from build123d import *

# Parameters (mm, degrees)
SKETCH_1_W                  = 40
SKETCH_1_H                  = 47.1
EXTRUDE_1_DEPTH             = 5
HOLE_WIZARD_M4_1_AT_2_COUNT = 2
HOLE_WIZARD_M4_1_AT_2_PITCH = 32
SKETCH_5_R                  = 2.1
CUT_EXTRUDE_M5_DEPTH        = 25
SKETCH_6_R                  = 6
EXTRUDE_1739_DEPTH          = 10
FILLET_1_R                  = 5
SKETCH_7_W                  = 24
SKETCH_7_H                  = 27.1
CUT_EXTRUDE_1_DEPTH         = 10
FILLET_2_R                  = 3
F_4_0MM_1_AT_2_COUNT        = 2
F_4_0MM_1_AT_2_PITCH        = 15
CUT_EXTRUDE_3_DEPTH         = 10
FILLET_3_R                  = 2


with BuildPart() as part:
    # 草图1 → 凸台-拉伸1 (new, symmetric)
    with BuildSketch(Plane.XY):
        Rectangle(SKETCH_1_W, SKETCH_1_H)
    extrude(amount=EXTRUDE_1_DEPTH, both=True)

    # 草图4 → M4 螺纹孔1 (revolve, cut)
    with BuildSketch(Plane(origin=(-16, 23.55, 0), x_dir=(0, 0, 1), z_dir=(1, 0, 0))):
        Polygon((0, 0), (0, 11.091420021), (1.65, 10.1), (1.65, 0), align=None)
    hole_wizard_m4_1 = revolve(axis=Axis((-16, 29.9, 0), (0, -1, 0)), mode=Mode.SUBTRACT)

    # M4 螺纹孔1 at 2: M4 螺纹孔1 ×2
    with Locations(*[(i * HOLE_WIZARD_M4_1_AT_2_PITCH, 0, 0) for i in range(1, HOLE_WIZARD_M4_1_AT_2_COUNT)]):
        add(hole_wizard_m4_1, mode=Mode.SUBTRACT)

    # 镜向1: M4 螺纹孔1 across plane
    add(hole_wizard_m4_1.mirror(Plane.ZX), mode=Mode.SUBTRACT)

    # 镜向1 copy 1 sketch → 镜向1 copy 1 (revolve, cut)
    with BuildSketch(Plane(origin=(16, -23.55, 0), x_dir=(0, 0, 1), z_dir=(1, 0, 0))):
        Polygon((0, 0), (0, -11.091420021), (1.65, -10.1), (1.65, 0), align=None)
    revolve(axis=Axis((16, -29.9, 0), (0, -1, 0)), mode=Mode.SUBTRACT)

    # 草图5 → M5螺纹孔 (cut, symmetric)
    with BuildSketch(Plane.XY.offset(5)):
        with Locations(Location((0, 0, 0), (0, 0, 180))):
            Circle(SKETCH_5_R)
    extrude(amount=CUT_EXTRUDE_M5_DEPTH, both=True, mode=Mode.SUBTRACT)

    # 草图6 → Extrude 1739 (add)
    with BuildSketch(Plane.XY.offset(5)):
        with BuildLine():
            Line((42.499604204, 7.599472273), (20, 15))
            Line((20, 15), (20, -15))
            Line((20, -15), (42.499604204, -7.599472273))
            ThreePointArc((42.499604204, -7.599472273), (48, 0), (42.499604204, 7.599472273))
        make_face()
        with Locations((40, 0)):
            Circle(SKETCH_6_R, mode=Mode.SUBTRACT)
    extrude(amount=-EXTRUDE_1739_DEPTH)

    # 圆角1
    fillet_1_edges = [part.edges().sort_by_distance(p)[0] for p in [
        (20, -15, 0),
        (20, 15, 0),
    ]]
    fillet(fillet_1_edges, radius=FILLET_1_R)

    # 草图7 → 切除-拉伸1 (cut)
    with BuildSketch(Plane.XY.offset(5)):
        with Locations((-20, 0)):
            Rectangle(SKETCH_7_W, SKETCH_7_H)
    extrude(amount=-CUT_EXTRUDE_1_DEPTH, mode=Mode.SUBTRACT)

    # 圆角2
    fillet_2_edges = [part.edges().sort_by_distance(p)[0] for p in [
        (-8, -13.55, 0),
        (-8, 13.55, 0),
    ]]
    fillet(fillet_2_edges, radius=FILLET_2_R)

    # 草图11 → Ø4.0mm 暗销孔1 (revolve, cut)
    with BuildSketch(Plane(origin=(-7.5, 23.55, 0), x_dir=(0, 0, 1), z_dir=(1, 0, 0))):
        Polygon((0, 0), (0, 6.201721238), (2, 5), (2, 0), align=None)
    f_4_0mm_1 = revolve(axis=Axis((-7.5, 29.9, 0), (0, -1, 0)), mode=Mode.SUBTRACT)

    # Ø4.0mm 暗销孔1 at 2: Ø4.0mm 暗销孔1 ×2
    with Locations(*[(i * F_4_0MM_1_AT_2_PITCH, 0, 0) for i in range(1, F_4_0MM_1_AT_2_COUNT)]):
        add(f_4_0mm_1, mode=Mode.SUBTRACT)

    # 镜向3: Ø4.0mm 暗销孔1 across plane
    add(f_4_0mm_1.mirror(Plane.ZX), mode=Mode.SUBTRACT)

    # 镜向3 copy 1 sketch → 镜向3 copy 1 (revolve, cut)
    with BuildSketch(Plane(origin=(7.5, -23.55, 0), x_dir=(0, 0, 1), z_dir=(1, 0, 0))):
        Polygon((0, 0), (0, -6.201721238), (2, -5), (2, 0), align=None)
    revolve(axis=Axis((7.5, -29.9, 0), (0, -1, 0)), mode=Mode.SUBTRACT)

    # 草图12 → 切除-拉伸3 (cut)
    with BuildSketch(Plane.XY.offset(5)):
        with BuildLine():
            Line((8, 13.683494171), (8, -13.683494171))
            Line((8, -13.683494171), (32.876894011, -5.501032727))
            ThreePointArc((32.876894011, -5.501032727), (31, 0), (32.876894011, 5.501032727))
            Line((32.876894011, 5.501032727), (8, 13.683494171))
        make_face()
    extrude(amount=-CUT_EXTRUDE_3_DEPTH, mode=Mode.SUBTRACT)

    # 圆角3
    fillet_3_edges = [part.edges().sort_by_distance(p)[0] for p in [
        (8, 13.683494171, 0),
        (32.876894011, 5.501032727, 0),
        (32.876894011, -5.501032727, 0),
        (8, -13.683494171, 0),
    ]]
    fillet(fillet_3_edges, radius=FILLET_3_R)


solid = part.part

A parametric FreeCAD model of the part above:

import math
import FreeCAD as App
import Part
import Sketcher
Q = App.Units.Quantity


def edges_at(feature, points):
    """Names of the edges that pass closest to the given points."""
    edges = feature.Shape.Edges
    near = lambda p: min(range(len(edges)), key=lambda i: edges[i].distToShape(Part.Vertex(*p))[0])
    return sorted({f"Edge{near(p) + 1}" for p in points})


def add_polygon(sketch, points):
    """Adds a closed chain of lines whose ends are joined by coincident constraints."""
    first, n = sketch.GeometryCount, len(points)
    for a, b in zip(points, points[1:] + points[:1]):
        sketch.addGeometry(Part.LineSegment(App.Vector(*a, 0), App.Vector(*b, 0)), False)
    for i in range(n):
        sketch.addConstraint(Sketcher.Constraint("Coincident", first + i, 2, first + (i + 1) % n, 1))

doc = App.newDocument("Part")
params = doc.addObject("Spreadsheet::Sheet", "Params")
for row, (alias, value) in enumerate([
    ("sketch1_width", "40 mm"),
    ("sketch1_height", "47.1 mm"),
    ("pad1_length", "10 mm"),
    ("sketch2_width", "10.1 mm"),
    ("sketch2_height", "1.65 mm"),
    ("groove_angle", "360 deg"),
    ("linearpattern_pitch", "32 mm"),
    ("sketch3_width", "10.1 mm"),
    ("sketch3_height", "1.65 mm"),
    ("groove2_angle", "360 deg"),
    ("sketch4_diameter", "4.2 mm"),
    ("pocket1_length", "50 mm"),
    ("sketch5_diameter", "12 mm"),
    ("sketch5_radius", "8 mm"),
    ("sketch5_height", "30 mm"),
    ("pad2_length", "10 mm"),
    ("fillet_radius", "5 mm"),
    ("sketch6_width", "24 mm"),
    ("sketch6_height", "27.1 mm"),
    ("pocket2_length", "10 mm"),
    ("fillet2_radius", "3 mm"),
    ("sketch7_width", "5 mm"),
    ("sketch7_height", "2 mm"),
    ("groove3_angle", "360 deg"),
    ("linearpattern2_pitch", "15 mm"),
    ("sketch8_width", "5 mm"),
    ("sketch8_height", "2 mm"),
    ("groove4_angle", "360 deg"),
    ("sketch9_radius", "9 mm"),
    ("pocket3_length", "10 mm"),
    ("fillet3_radius", "2 mm"),
], start=1):
    params.set(f"A{row}", alias)
    params.set(f"B{row}", "=" + value)
    params.setAlias(f"B{row}", alias)

body = doc.addObject("PartDesign::Body", "Body")

# Sketch on XY plane
sketch1 = body.newObject("Sketcher::SketchObject", "Sketch")
sketch1.AttachmentSupport = (doc.getObject("XY_Plane"), [""])
sketch1.MapMode = "FlatFace"
add_polygon(sketch1, [(-20, 24), (-20, -24), (20, -24), (20, 24)])  # lines 0-3
sketch1.addConstraint([
    Sketcher.Constraint("Vertical", 0),
    Sketcher.Constraint("Horizontal", 1),
    Sketcher.Constraint("Vertical", 2),
    Sketcher.Constraint("Horizontal", 3),
    Sketcher.Constraint("Symmetric", 0, 2, 2, 2, -1, 1),
    Sketcher.Constraint("DistanceX", 1, 1, 1, 2, Q("40 mm")),
    Sketcher.Constraint("DistanceY", 0, 2, 0, 1, Q("47.1 mm")),
])
sketch1.setExpression("Constraints[9]", "Params.sketch1_width")
sketch1.setExpression("Constraints[10]", "Params.sketch1_height")
pad1 = body.newObject("PartDesign::Pad", "Pad")
pad1.Profile = sketch1
pad1.setExpression("Length", "Params.pad1_length")
pad1.Midplane = True

# Sketch on YZ plane
sketch2 = body.newObject("Sketcher::SketchObject", "Sketch001")
sketch2.AttachmentSupport = (doc.getObject("YZ_Plane"), [""])
sketch2.MapMode = "FlatFace"
sketch2.AttachmentOffset = App.Placement(App.Vector(0, 0, -16), App.Rotation())
add_polygon(sketch2, [(12.5, 0), (23.6, 0), (23.6, 1.6), (13.4, 1.6)])  # lines 0-3
sketch2.addConstraint([
    Sketcher.Constraint("Horizontal", 0),
    Sketcher.Constraint("Vertical", 1),
    Sketcher.Constraint("Horizontal", 2),
    Sketcher.Constraint("PointOnObject", 0, 2, -1),
    Sketcher.Constraint("Angle", 3, Q("-121 deg")),
    Sketcher.Constraint("DistanceX", 2, 2, 2, 1, Q("10.1 mm")),
    Sketcher.Constraint("DistanceY", 1, 1, 1, 2, Q("1.65 mm")),
    Sketcher.Constraint("DistanceX", -1, 1, 0, 2, Q("23.55 mm")),
])
sketch2.setExpression("Constraints[9]", "Params.sketch2_width")
sketch2.setExpression("Constraints[10]", "Params.sketch2_height")
groove = body.newObject("PartDesign::Groove", "Groove")
groove.Profile = sketch2
groove.ReferenceAxis = (sketch2, ["H_Axis"])
groove.setExpression("Angle", "Params.groove_angle")
doc.recompute()

linearpattern = body.newObject("PartDesign::LinearPattern", "LinearPattern")
linearpattern.Originals = [groove]
linearpattern.Direction = (doc.getObject("X_Axis"), [""])
linearpattern.Mode = "offset"
linearpattern.setExpression("Offset", "Params.linearpattern_pitch")
linearpattern.Occurrences = 2
body.Tip = linearpattern
doc.recompute()

mirrored = body.newObject("PartDesign::Mirrored", "Mirrored")
mirrored.Originals = [groove]
mirrored.MirrorPlane = (doc.getObject("XZ_Plane"), [""])
body.Tip = mirrored

# Sketch on YZ plane
sketch3 = body.newObject("Sketcher::SketchObject", "Sketch002")
sketch3.AttachmentSupport = (doc.getObject("YZ_Plane"), [""])
sketch3.MapMode = "FlatFace"
sketch3.AttachmentOffset = App.Placement(App.Vector(0, 0, 16), App.Rotation())
add_polygon(sketch3, [(-23.6, 0), (-12.5, 0), (-13.4, 1.6), (-23.6, 1.6)])  # lines 0-3
sketch3.addConstraint([
    Sketcher.Constraint("Horizontal", 0),
    Sketcher.Constraint("Horizontal", 2),
    Sketcher.Constraint("Vertical", 3),
    Sketcher.Constraint("PointOnObject", 0, 2, -1),
    Sketcher.Constraint("Angle", 1, Q("121 deg")),
    Sketcher.Constraint("DistanceX", 2, 2, 2, 1, Q("10.1 mm")),
    Sketcher.Constraint("DistanceY", 3, 2, 3, 1, Q("1.65 mm")),
    Sketcher.Constraint("DistanceX", 1, 2, -1, 1, Q("13.45 mm")),
])
sketch3.setExpression("Constraints[9]", "Params.sketch3_width")
sketch3.setExpression("Constraints[10]", "Params.sketch3_height")
groove2 = body.newObject("PartDesign::Groove", "Groove001")
groove2.Profile = sketch3
groove2.ReferenceAxis = (sketch3, ["H_Axis"])
groove2.setExpression("Angle", "Params.groove2_angle")

# Sketch on XY plane
sketch4 = body.newObject("Sketcher::SketchObject", "Sketch003")
sketch4.AttachmentSupport = (doc.getObject("XY_Plane"), [""])
sketch4.MapMode = "FlatFace"
sketch4.AttachmentOffset = App.Placement(App.Vector(0, 0, 5), App.Rotation())
sketch4.addGeometry(Part.Circle(App.Vector(0, 0, 0), App.Vector(0, 0, 1), 2.1), False)
sketch4.addConstraint([
    Sketcher.Constraint("Coincident", 0, 3, -1, 1),
    Sketcher.Constraint("Diameter", 0, Q("4.2 mm")),
])
sketch4.setExpression("Constraints[1]", "Params.sketch4_diameter")
pocket1 = body.newObject("PartDesign::Pocket", "Pocket")
pocket1.Profile = sketch4
pocket1.setExpression("Length", "Params.pocket1_length")
pocket1.Midplane = True

# Sketch on XY plane
sketch5 = body.newObject("Sketcher::SketchObject", "Sketch004")
sketch5.AttachmentSupport = (doc.getObject("XY_Plane"), [""])
sketch5.MapMode = "FlatFace"
sketch5.AttachmentOffset = App.Placement(App.Vector(0, 0, 5), App.Rotation())
sketch5.addGeometry([
    Part.LineSegment(App.Vector(42, 8, 0), App.Vector(20, 15, 0)),  # 0
    Part.LineSegment(App.Vector(20, 15, 0), App.Vector(20, -15, 0)),  # 1
    Part.LineSegment(App.Vector(20, -15, 0), App.Vector(42, -8, 0)),  # 2
    Part.ArcOfCircle(Part.Circle(App.Vector(40, 0, 0), App.Vector(0, 0, 1), 8), math.radians(-72), math.radians(72)),  # 3
    Part.Circle(App.Vector(40, 0, 0), App.Vector(0, 0, 1), 6),  # 4
], False)
sketch5.addConstraint([
    Sketcher.Constraint("Coincident", 0, 2, 1, 1),
    Sketcher.Constraint("Coincident", 1, 2, 2, 1),
    Sketcher.Constraint("Tangent", 2, 2, 3, 1),
    Sketcher.Constraint("Tangent", 3, 2, 0, 1),
    Sketcher.Constraint("Vertical", 1),
    Sketcher.Constraint("Coincident", 4, 3, 3, 3),
    Sketcher.Constraint("Symmetric", 2, 2, 3, 2, -1),
    Sketcher.Constraint("Diameter", 4, Q("12 mm")),
    Sketcher.Constraint("Radius", 3, Q("8 mm")),
    Sketcher.Constraint("DistanceY", 1, 2, 1, 1, Q("30 mm")),
    Sketcher.Constraint("DistanceX", -1, 1, 3, 3, Q("40 mm")),
    Sketcher.Constraint("DistanceX", -1, 1, 0, 2, Q("20 mm")),
])
sketch5.setExpression("Constraints[7]", "Params.sketch5_diameter")
sketch5.setExpression("Constraints[8]", "Params.sketch5_radius")
sketch5.setExpression("Constraints[9]", "Params.sketch5_height")
pad2 = body.newObject("PartDesign::Pad", "Pad001")
pad2.Profile = sketch5
pad2.setExpression("Length", "Params.pad2_length")
pad2.Reversed = True
doc.recompute()

fillet = body.newObject("PartDesign::Fillet", "Fillet")
fillet.Base = (pad2, edges_at(pad2, [(20, -15, 0), (20, 15, 0)]))
fillet.setExpression("Radius", "Params.fillet_radius")

# Sketch on XY plane
sketch6 = body.newObject("Sketcher::SketchObject", "Sketch005")
sketch6.AttachmentSupport = (doc.getObject("XY_Plane"), [""])
sketch6.MapMode = "FlatFace"
sketch6.AttachmentOffset = App.Placement(App.Vector(0, 0, 5), App.Rotation())
add_polygon(sketch6, [(-32, 14), (-32, -14), (-8, -14), (-8, 14)])  # lines 0-3
sketch6.addConstraint([
    Sketcher.Constraint("Vertical", 0),
    Sketcher.Constraint("Horizontal", 1),
    Sketcher.Constraint("Vertical", 2),
    Sketcher.Constraint("Horizontal", 3),
    Sketcher.Constraint("DistanceX", 1, 1, 1, 2, Q("24 mm")),
    Sketcher.Constraint("DistanceY", 0, 2, 0, 1, Q("27.1 mm")),
    Sketcher.Constraint("DistanceX", 0, 2, -1, 1, Q("32 mm")),
    Sketcher.Constraint("DistanceY", 0, 2, -1, 1, Q("13.55 mm")),
])
sketch6.setExpression("Constraints[8]", "Params.sketch6_width")
sketch6.setExpression("Constraints[9]", "Params.sketch6_height")
pocket2 = body.newObject("PartDesign::Pocket", "Pocket001")
pocket2.Profile = sketch6
pocket2.setExpression("Length", "Params.pocket2_length")
doc.recompute()

fillet2 = body.newObject("PartDesign::Fillet", "Fillet001")
fillet2.Base = (pocket2, edges_at(pocket2, [(-8, -13.55, 0), (-8, 13.55, 0)]))
fillet2.setExpression("Radius", "Params.fillet2_radius")

# Sketch on YZ plane
sketch7 = body.newObject("Sketcher::SketchObject", "Sketch006")
sketch7.AttachmentSupport = (doc.getObject("YZ_Plane"), [""])
sketch7.MapMode = "FlatFace"
sketch7.AttachmentOffset = App.Placement(App.Vector(0, 0, -7.5), App.Rotation())
add_polygon(sketch7, [(17.3, 0), (23.6, 0), (23.6, 2), (18.6, 2)])  # lines 0-3
sketch7.addConstraint([
    Sketcher.Constraint("Horizontal", 0),
    Sketcher.Constraint("Vertical", 1),
    Sketcher.Constraint("Horizontal", 2),
    Sketcher.Constraint("PointOnObject", 0, 2, -1),
    Sketcher.Constraint("DistanceX", 2, 2, 2, 1, Q("5 mm")),
    Sketcher.Constraint("DistanceY", 1, 1, 1, 2, Q("2 mm")),
    Sketcher.Constraint("Angle", 3, Q("-121 deg")),
    Sketcher.Constraint("DistanceX", -1, 1, 0, 2, Q("23.55 mm")),
])
sketch7.setExpression("Constraints[8]", "Params.sketch7_width")
sketch7.setExpression("Constraints[9]", "Params.sketch7_height")
groove3 = body.newObject("PartDesign::Groove", "Groove002")
groove3.Profile = sketch7
groove3.ReferenceAxis = (sketch7, ["H_Axis"])
groove3.setExpression("Angle", "Params.groove3_angle")
doc.recompute()

linearpattern2 = body.newObject("PartDesign::LinearPattern", "LinearPattern001")
linearpattern2.Originals = [groove3]
linearpattern2.Direction = (doc.getObject("X_Axis"), [""])
linearpattern2.Mode = "offset"
linearpattern2.setExpression("Offset", "Params.linearpattern2_pitch")
linearpattern2.Occurrences = 2
body.Tip = linearpattern2
doc.recompute()

mirrored2 = body.newObject("PartDesign::Mirrored", "Mirrored001")
mirrored2.Originals = [groove3]
mirrored2.MirrorPlane = (doc.getObject("XZ_Plane"), [""])
body.Tip = mirrored2

# Sketch on YZ plane
sketch8 = body.newObject("Sketcher::SketchObject", "Sketch007")
sketch8.AttachmentSupport = (doc.getObject("YZ_Plane"), [""])
sketch8.MapMode = "FlatFace"
sketch8.AttachmentOffset = App.Placement(App.Vector(0, 0, 7.5), App.Rotation())
add_polygon(sketch8, [(-23.6, 0), (-17.3, 0), (-18.6, 2), (-23.6, 2)])  # lines 0-3
sketch8.addConstraint([
    Sketcher.Constraint("Horizontal", 0),
    Sketcher.Constraint("Horizontal", 2),
    Sketcher.Constraint("Vertical", 3),
    Sketcher.Constraint("PointOnObject", 0, 2, -1),
    Sketcher.Constraint("DistanceX", 2, 2, 2, 1, Q("5 mm")),
    Sketcher.Constraint("DistanceY", 3, 2, 3, 1, Q("2 mm")),
    Sketcher.Constraint("Angle", 1, Q("121 deg")),
    Sketcher.Constraint("DistanceX", 1, 2, -1, 1, Q("18.55 mm")),
])
sketch8.setExpression("Constraints[8]", "Params.sketch8_width")
sketch8.setExpression("Constraints[9]", "Params.sketch8_height")
groove4 = body.newObject("PartDesign::Groove", "Groove003")
groove4.Profile = sketch8
groove4.ReferenceAxis = (sketch8, ["H_Axis"])
groove4.setExpression("Angle", "Params.groove4_angle")

# Sketch on XY plane
sketch9 = body.newObject("Sketcher::SketchObject", "Sketch008")
sketch9.AttachmentSupport = (doc.getObject("XY_Plane"), [""])
sketch9.MapMode = "FlatFace"
sketch9.AttachmentOffset = App.Placement(App.Vector(0, 0, 5), App.Rotation())
sketch9.addGeometry([
    Part.LineSegment(App.Vector(8, 14, 0), App.Vector(8, -14, 0)),
    Part.LineSegment(App.Vector(8, -14, 0), App.Vector(33, -6, 0)),
    Part.ArcOfCircle(Part.Circle(App.Vector(40, 0, 0), App.Vector(0, 0, 1), 9), math.radians(142), math.radians(218)),
    Part.LineSegment(App.Vector(33, 6, 0), App.Vector(8, 14, 0)),
], False)
sketch9.addConstraint([
    Sketcher.Constraint("Coincident", 0, 2, 1, 1),
    Sketcher.Constraint("Coincident", 1, 2, 2, 2),
    Sketcher.Constraint("Coincident", 2, 1, 3, 1),
    Sketcher.Constraint("Coincident", 3, 2, 0, 1),
    Sketcher.Constraint("Vertical", 0),
    Sketcher.Constraint("Symmetric", 1, 2, 2, 1, -1),
    Sketcher.Constraint("Equal", 1, 3),
    Sketcher.Constraint("Radius", 2, Q("9 mm")),
    Sketcher.Constraint("DistanceX", -1, 1, 2, 3, Q("40 mm")),
    Sketcher.Constraint("DistanceX", -1, 1, 0, 2, Q("8 mm")),
    Sketcher.Constraint("DistanceY", 0, 2, 0, 1, Q("27.366988 mm")),
    Sketcher.Constraint("DistanceY", 0, 2, 1, 2, Q("8.182461 mm")),
])
sketch9.setExpression("Constraints[7]", "Params.sketch9_radius")
pocket3 = body.newObject("PartDesign::Pocket", "Pocket002")
pocket3.Profile = sketch9
pocket3.setExpression("Length", "Params.pocket3_length")
doc.recompute()

fillet3 = body.newObject("PartDesign::Fillet", "Fillet002")
fillet3.Base = (pocket3, edges_at(pocket3, [
    (8, 13.683, 0),
    (32.877, 5.501, 0),
    (32.877, -5.501, 0),
    (8, -13.683, 0),
]))
fillet3.setExpression("Radius", "Params.fillet3_radius")

doc.recompute()
